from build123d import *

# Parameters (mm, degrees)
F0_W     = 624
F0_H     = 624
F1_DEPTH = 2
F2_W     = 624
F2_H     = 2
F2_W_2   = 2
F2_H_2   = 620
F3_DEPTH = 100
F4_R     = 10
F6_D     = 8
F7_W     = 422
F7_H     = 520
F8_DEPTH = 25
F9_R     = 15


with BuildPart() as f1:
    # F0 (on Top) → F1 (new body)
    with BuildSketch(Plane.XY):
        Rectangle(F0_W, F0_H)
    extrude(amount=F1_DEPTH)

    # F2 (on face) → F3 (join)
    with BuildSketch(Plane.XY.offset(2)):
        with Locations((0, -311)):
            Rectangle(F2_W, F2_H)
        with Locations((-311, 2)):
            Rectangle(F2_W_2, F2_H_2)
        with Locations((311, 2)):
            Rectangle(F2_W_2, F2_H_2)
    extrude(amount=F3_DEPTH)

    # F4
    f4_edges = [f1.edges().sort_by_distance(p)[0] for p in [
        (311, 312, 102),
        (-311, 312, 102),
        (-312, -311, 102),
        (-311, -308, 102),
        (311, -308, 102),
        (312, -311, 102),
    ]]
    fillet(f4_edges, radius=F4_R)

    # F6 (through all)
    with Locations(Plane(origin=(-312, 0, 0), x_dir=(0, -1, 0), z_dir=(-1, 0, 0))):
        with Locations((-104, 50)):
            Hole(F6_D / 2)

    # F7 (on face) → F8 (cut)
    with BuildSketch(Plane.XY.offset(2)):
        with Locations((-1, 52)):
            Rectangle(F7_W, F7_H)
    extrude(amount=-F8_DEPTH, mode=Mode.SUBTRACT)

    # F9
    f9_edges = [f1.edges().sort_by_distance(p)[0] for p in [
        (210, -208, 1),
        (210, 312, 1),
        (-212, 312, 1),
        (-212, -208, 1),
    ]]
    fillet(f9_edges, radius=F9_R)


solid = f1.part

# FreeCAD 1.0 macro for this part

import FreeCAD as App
import Part
import Sketcher
from FreeCAD import Vector
Q = App.Units.Quantity


def edges_at(feature, points):
    """Names of the edges that pass closest to the given points."""
    edges = feature.Shape.Edges
    near = lambda p: min(range(len(edges)), key=lambda i: edges[i].distToShape(Part.Vertex(*p))[0])
    return sorted({f"Edge{near(p) + 1}" for p in points})

doc = App.newDocument("Part")
body = doc.addObject("PartDesign::Body", "Body")

# Sketch on XY plane
sketch1 = body.newObject("Sketcher::SketchObject", "Sketch")
sketch1.AttachmentSupport = (doc.getObject("XY_Plane"), [""])
sketch1.MapMode = "FlatFace"
sketch1.addGeometry(Part.LineSegment(Vector(-312, 312, 0), Vector(-312, -312, 0)), False)
sketch1.addGeometry(Part.LineSegment(Vector(-312, -312, 0), Vector(312, -312, 0)), False)
sketch1.addGeometry(Part.LineSegment(Vector(312, -312, 0), Vector(312, 312, 0)), False)
sketch1.addGeometry(Part.LineSegment(Vector(312, 312, 0), Vector(-312, 312, 0)), False)
sketch1.addConstraint(Sketcher.Constraint("Coincident", 0, 2, 1, 1))
sketch1.addConstraint(Sketcher.Constraint("Coincident", 1, 2, 2, 1))
sketch1.addConstraint(Sketcher.Constraint("Coincident", 2, 2, 3, 1))
sketch1.addConstraint(Sketcher.Constraint("Coincident", 3, 2, 0, 1))
sketch1.addConstraint(Sketcher.Constraint("Vertical", 0))
sketch1.addConstraint(Sketcher.Constraint("Horizontal", 1))
sketch1.addConstraint(Sketcher.Constraint("Vertical", 2))
sketch1.addConstraint(Sketcher.Constraint("Horizontal", 3))
sketch1.addConstraint(Sketcher.Constraint("Symmetric", 0, 2, 2, 2, -1, 1))
sketch1.addConstraint(Sketcher.Constraint("Equal", 3, 0))
sketch1.addConstraint(Sketcher.Constraint("DistanceX", 1, 1, 1, 2, Q("624 mm")))
pad1 = body.newObject("PartDesign::Pad", "Pad")
pad1.Profile = sketch1
pad1.Length = 2

# Sketch on XY plane
sketch2 = body.newObject("Sketcher::SketchObject", "Sketch001")
sketch2.AttachmentSupport = (doc.getObject("XY_Plane"), [""])
sketch2.MapMode = "FlatFace"
sketch2.AttachmentOffset = App.Placement(Vector(0, 0, 2), App.Rotation())
sketch2.addGeometry(Part.LineSegment(Vector(-312, -310, 0), Vector(-312, -312, 0)), False)
sketch2.addGeometry(Part.LineSegment(Vector(-312, -312, 0), Vector(312, -312, 0)), False)
sketch2.addGeometry(Part.LineSegment(Vector(312, -312, 0), Vector(312, -310, 0)), False)
sketch2.addGeometry(Part.LineSegment(Vector(312, -310, 0), Vector(-312, -310, 0)), False)
sketch2.addGeometry(Part.LineSegment(Vector(-312, 312, 0), Vector(-312, -308, 0)), False)
sketch2.addGeometry(Part.LineSegment(Vector(-312, -308, 0), Vector(-310, -308, 0)), False)
sketch2.addGeometry(Part.LineSegment(Vector(-310, -308, 0), Vector(-310, 312, 0)), False)
sketch2.addGeometry(Part.LineSegment(Vector(-310, 312, 0), Vector(-312, 312, 0)), False)
sketch2.addGeometry(Part.LineSegment(Vector(310, 312, 0), Vector(310, -308, 0)), False)
sketch2.addGeometry(Part.LineSegment(Vector(310, -308, 0), Vector(312, -308, 0)), False)
sketch2.addGeometry(Part.LineSegment(Vector(312, -308, 0), Vector(312, 312, 0)), False)
sketch2.addGeometry(Part.LineSegment(Vector(312, 312, 0), Vector(310, 312, 0)), False)
sketch2.addConstraint(Sketcher.Constraint("Coincident", 0, 2, 1, 1))
sketch2.addConstraint(Sketcher.Constraint("Coincident", 1, 2, 2, 1))
sketch2.addConstraint(Sketcher.Constraint("Coincident", 2, 2, 3, 1))
sketch2.addConstraint(Sketcher.Constraint("Coincident", 3, 2, 0, 1))
sketch2.addConstraint(Sketcher.Constraint("Coincident", 4, 2, 5, 1))
sketch2.addConstraint(Sketcher.Constraint("Coincident", 5, 2, 6, 1))
sketch2.addConstraint(Sketcher.Constraint("Coincident", 6, 2, 7, 1))
sketch2.addConstraint(Sketcher.Constraint("Coincident", 7, 2, 4, 1))
sketch2.addConstraint(Sketcher.Constraint("Coincident", 8, 2, 9, 1))
sketch2.addConstraint(Sketcher.Constraint("Coincident", 9, 2, 10, 1))
sketch2.addConstraint(Sketcher.Constraint("Coincident", 10, 2, 11, 1))
sketch2.addConstraint(Sketcher.Constraint("Coincident", 11, 2, 8, 1))
sketch2.addConstraint(Sketcher.Constraint("Vertical", 0))
sketch2.addConstraint(Sketcher.Constraint("Horizontal", 1))
sketch2.addConstraint(Sketcher.Constraint("Vertical", 2))
sketch2.addConstraint(Sketcher.Constraint("Horizontal", 3))
sketch2.addConstraint(Sketcher.Constraint("Vertical", 4))
sketch2.addConstraint(Sketcher.Constraint("Horizontal", 5))
sketch2.addConstraint(Sketcher.Constraint("Vertical", 6))
sketch2.addConstraint(Sketcher.Constraint("Horizontal", 7))
sketch2.addConstraint(Sketcher.Constraint("Vertical", 8))
sketch2.addConstraint(Sketcher.Constraint("Horizontal", 9))
sketch2.addConstraint(Sketcher.Constraint("Vertical", 10))
sketch2.addConstraint(Sketcher.Constraint("Horizontal", 11))
sketch2.addConstraint(Sketcher.Constraint("Symmetric", 1, 2, 7, 2, -1, 1))
sketch2.addConstraint(Sketcher.Constraint("Symmetric", 0, 2, 10, 2, -1, 1))
sketch2.addConstraint(Sketcher.Constraint("Symmetric", 5, 2, 8, 2, -2))
sketch2.addConstraint(Sketcher.Constraint("Vertical", 3, 2, 4, 2))
sketch2.addConstraint(Sketcher.Constraint("Equal", 11, 0))
sketch2.addConstraint(Sketcher.Constraint("DistanceX", 1, 1, 1, 2, Q("624 mm")))
sketch2.addConstraint(Sketcher.Constraint("DistanceX", 5, 1, 5, 2, Q("2 mm")))
sketch2.addConstraint(Sketcher.Constraint("DistanceY", 4, 2, 4, 1, Q("620 mm")))
sketch2.addConstraint(Sketcher.Constraint("DistanceY", 0, 2, -1, 1, Q("312 mm")))
pad2 = body.newObject("PartDesign::Pad", "Pad001")
pad2.Profile = sketch2
pad2.Length = 100
doc.recompute()

fillet = body.newObject("PartDesign::Fillet", "Fillet")
fillet.Base = (pad2, edges_at(pad2, [
    (311, 312, 102),
    (-311, 312, 102),
    (-312, -311, 102),
    (-311, -308, 102),
    (311, -308, 102),
    (312, -311, 102),
]))
fillet.Radius = 10

# Sketch on YZ plane
sketch3 = body.newObject("Sketcher::SketchObject", "Sketch002")
sketch3.AttachmentSupport = (doc.getObject("YZ_Plane"), [""])
sketch3.MapMode = "FlatFace"
sketch3.AttachmentOffset = App.Placement(Vector(0, 0, -312), App.Rotation())
sketch3.addGeometry(Part.Circle(Vector(104, 50, 0), Vector(0, 0, 1), 4), False)
sketch3.addConstraint(Sketcher.Constraint("Diameter", 0, Q("8 mm")))
sketch3.addConstraint(Sketcher.Constraint("DistanceX", -1, 1, 0, 3, Q("104 mm")))
sketch3.addConstraint(Sketcher.Constraint("DistanceY", -1, 1, 0, 3, Q("50 mm")))
doc.recompute()
hole = body.newObject("PartDesign::Hole", "Hole")
hole.Profile = sketch3
hole.ThreadType = "None"
hole.Diameter = 8
hole.DepthType = "ThroughAll"
hole.Reversed = True

# Sketch on XY plane
sketch4 = body.newObject("Sketcher::SketchObject", "Sketch003")
sketch4.AttachmentSupport = (doc.getObject("XY_Plane"), [""])
sketch4.MapMode = "FlatFace"
sketch4.AttachmentOffset = App.Placement(Vector(0, 0, 2), App.Rotation())
sketch4.addGeometry(Part.LineSegment(Vector(-212, 312, 0), Vector(-212, -208, 0)), False)
sketch4.addGeometry(Part.LineSegment(Vector(-212, -208, 0), Vector(210, -208, 0)), False)
sketch4.addGeometry(Part.LineSegment(Vector(210, -208, 0), Vector(210, 312, 0)), False)
sketch4.addGeometry(Part.LineSegment(Vector(210, 312, 0), Vector(-212, 312, 0)), False)
sketch4.addConstraint(Sketcher.Constraint("Coincident", 0, 2, 1, 1))
sketch4.addConstraint(Sketcher.Constraint("Coincident", 1, 2, 2, 1))
sketch4.addConstraint(Sketcher.Constraint("Coincident", 2, 2, 3, 1))
sketch4.addConstraint(Sketcher.Constraint("Coincident", 3, 2, 0, 1))
sketch4.addConstraint(Sketcher.Constraint("Vertical", 0))
sketch4.addConstraint(Sketcher.Constraint("Horizontal", 1))
sketch4.addConstraint(Sketcher.Constraint("Vertical", 2))
sketch4.addConstraint(Sketcher.Constraint("Horizontal", 3))
sketch4.addConstraint(Sketcher.Constraint("DistanceX", 1, 1, 1, 2, Q("422 mm")))
sketch4.addConstraint(Sketcher.Constraint("DistanceY", 0, 2, 0, 1, Q("520 mm")))
sketch4.addConstraint(Sketcher.Constraint("DistanceX", 0, 2, -1, 1, Q("212 mm")))
sketch4.addConstraint(Sketcher.Constraint("DistanceY", 0, 2, -1, 1, Q("208 mm")))
pocket1 = body.newObject("PartDesign::Pocket", "Pocket")
pocket1.Profile = sketch4
pocket1.Length = 25
doc.recompute()

fillet2 = body.newObject("PartDesign::Fillet", "Fillet001")
fillet2.Base = (pocket1, edges_at(pocket1, [
    (210, -208, 1),
    (210, 312, 1),
    (-212, 312, 1),
    (-212, -208, 1),
]))
fillet2.Radius = 15

doc.recompute()
